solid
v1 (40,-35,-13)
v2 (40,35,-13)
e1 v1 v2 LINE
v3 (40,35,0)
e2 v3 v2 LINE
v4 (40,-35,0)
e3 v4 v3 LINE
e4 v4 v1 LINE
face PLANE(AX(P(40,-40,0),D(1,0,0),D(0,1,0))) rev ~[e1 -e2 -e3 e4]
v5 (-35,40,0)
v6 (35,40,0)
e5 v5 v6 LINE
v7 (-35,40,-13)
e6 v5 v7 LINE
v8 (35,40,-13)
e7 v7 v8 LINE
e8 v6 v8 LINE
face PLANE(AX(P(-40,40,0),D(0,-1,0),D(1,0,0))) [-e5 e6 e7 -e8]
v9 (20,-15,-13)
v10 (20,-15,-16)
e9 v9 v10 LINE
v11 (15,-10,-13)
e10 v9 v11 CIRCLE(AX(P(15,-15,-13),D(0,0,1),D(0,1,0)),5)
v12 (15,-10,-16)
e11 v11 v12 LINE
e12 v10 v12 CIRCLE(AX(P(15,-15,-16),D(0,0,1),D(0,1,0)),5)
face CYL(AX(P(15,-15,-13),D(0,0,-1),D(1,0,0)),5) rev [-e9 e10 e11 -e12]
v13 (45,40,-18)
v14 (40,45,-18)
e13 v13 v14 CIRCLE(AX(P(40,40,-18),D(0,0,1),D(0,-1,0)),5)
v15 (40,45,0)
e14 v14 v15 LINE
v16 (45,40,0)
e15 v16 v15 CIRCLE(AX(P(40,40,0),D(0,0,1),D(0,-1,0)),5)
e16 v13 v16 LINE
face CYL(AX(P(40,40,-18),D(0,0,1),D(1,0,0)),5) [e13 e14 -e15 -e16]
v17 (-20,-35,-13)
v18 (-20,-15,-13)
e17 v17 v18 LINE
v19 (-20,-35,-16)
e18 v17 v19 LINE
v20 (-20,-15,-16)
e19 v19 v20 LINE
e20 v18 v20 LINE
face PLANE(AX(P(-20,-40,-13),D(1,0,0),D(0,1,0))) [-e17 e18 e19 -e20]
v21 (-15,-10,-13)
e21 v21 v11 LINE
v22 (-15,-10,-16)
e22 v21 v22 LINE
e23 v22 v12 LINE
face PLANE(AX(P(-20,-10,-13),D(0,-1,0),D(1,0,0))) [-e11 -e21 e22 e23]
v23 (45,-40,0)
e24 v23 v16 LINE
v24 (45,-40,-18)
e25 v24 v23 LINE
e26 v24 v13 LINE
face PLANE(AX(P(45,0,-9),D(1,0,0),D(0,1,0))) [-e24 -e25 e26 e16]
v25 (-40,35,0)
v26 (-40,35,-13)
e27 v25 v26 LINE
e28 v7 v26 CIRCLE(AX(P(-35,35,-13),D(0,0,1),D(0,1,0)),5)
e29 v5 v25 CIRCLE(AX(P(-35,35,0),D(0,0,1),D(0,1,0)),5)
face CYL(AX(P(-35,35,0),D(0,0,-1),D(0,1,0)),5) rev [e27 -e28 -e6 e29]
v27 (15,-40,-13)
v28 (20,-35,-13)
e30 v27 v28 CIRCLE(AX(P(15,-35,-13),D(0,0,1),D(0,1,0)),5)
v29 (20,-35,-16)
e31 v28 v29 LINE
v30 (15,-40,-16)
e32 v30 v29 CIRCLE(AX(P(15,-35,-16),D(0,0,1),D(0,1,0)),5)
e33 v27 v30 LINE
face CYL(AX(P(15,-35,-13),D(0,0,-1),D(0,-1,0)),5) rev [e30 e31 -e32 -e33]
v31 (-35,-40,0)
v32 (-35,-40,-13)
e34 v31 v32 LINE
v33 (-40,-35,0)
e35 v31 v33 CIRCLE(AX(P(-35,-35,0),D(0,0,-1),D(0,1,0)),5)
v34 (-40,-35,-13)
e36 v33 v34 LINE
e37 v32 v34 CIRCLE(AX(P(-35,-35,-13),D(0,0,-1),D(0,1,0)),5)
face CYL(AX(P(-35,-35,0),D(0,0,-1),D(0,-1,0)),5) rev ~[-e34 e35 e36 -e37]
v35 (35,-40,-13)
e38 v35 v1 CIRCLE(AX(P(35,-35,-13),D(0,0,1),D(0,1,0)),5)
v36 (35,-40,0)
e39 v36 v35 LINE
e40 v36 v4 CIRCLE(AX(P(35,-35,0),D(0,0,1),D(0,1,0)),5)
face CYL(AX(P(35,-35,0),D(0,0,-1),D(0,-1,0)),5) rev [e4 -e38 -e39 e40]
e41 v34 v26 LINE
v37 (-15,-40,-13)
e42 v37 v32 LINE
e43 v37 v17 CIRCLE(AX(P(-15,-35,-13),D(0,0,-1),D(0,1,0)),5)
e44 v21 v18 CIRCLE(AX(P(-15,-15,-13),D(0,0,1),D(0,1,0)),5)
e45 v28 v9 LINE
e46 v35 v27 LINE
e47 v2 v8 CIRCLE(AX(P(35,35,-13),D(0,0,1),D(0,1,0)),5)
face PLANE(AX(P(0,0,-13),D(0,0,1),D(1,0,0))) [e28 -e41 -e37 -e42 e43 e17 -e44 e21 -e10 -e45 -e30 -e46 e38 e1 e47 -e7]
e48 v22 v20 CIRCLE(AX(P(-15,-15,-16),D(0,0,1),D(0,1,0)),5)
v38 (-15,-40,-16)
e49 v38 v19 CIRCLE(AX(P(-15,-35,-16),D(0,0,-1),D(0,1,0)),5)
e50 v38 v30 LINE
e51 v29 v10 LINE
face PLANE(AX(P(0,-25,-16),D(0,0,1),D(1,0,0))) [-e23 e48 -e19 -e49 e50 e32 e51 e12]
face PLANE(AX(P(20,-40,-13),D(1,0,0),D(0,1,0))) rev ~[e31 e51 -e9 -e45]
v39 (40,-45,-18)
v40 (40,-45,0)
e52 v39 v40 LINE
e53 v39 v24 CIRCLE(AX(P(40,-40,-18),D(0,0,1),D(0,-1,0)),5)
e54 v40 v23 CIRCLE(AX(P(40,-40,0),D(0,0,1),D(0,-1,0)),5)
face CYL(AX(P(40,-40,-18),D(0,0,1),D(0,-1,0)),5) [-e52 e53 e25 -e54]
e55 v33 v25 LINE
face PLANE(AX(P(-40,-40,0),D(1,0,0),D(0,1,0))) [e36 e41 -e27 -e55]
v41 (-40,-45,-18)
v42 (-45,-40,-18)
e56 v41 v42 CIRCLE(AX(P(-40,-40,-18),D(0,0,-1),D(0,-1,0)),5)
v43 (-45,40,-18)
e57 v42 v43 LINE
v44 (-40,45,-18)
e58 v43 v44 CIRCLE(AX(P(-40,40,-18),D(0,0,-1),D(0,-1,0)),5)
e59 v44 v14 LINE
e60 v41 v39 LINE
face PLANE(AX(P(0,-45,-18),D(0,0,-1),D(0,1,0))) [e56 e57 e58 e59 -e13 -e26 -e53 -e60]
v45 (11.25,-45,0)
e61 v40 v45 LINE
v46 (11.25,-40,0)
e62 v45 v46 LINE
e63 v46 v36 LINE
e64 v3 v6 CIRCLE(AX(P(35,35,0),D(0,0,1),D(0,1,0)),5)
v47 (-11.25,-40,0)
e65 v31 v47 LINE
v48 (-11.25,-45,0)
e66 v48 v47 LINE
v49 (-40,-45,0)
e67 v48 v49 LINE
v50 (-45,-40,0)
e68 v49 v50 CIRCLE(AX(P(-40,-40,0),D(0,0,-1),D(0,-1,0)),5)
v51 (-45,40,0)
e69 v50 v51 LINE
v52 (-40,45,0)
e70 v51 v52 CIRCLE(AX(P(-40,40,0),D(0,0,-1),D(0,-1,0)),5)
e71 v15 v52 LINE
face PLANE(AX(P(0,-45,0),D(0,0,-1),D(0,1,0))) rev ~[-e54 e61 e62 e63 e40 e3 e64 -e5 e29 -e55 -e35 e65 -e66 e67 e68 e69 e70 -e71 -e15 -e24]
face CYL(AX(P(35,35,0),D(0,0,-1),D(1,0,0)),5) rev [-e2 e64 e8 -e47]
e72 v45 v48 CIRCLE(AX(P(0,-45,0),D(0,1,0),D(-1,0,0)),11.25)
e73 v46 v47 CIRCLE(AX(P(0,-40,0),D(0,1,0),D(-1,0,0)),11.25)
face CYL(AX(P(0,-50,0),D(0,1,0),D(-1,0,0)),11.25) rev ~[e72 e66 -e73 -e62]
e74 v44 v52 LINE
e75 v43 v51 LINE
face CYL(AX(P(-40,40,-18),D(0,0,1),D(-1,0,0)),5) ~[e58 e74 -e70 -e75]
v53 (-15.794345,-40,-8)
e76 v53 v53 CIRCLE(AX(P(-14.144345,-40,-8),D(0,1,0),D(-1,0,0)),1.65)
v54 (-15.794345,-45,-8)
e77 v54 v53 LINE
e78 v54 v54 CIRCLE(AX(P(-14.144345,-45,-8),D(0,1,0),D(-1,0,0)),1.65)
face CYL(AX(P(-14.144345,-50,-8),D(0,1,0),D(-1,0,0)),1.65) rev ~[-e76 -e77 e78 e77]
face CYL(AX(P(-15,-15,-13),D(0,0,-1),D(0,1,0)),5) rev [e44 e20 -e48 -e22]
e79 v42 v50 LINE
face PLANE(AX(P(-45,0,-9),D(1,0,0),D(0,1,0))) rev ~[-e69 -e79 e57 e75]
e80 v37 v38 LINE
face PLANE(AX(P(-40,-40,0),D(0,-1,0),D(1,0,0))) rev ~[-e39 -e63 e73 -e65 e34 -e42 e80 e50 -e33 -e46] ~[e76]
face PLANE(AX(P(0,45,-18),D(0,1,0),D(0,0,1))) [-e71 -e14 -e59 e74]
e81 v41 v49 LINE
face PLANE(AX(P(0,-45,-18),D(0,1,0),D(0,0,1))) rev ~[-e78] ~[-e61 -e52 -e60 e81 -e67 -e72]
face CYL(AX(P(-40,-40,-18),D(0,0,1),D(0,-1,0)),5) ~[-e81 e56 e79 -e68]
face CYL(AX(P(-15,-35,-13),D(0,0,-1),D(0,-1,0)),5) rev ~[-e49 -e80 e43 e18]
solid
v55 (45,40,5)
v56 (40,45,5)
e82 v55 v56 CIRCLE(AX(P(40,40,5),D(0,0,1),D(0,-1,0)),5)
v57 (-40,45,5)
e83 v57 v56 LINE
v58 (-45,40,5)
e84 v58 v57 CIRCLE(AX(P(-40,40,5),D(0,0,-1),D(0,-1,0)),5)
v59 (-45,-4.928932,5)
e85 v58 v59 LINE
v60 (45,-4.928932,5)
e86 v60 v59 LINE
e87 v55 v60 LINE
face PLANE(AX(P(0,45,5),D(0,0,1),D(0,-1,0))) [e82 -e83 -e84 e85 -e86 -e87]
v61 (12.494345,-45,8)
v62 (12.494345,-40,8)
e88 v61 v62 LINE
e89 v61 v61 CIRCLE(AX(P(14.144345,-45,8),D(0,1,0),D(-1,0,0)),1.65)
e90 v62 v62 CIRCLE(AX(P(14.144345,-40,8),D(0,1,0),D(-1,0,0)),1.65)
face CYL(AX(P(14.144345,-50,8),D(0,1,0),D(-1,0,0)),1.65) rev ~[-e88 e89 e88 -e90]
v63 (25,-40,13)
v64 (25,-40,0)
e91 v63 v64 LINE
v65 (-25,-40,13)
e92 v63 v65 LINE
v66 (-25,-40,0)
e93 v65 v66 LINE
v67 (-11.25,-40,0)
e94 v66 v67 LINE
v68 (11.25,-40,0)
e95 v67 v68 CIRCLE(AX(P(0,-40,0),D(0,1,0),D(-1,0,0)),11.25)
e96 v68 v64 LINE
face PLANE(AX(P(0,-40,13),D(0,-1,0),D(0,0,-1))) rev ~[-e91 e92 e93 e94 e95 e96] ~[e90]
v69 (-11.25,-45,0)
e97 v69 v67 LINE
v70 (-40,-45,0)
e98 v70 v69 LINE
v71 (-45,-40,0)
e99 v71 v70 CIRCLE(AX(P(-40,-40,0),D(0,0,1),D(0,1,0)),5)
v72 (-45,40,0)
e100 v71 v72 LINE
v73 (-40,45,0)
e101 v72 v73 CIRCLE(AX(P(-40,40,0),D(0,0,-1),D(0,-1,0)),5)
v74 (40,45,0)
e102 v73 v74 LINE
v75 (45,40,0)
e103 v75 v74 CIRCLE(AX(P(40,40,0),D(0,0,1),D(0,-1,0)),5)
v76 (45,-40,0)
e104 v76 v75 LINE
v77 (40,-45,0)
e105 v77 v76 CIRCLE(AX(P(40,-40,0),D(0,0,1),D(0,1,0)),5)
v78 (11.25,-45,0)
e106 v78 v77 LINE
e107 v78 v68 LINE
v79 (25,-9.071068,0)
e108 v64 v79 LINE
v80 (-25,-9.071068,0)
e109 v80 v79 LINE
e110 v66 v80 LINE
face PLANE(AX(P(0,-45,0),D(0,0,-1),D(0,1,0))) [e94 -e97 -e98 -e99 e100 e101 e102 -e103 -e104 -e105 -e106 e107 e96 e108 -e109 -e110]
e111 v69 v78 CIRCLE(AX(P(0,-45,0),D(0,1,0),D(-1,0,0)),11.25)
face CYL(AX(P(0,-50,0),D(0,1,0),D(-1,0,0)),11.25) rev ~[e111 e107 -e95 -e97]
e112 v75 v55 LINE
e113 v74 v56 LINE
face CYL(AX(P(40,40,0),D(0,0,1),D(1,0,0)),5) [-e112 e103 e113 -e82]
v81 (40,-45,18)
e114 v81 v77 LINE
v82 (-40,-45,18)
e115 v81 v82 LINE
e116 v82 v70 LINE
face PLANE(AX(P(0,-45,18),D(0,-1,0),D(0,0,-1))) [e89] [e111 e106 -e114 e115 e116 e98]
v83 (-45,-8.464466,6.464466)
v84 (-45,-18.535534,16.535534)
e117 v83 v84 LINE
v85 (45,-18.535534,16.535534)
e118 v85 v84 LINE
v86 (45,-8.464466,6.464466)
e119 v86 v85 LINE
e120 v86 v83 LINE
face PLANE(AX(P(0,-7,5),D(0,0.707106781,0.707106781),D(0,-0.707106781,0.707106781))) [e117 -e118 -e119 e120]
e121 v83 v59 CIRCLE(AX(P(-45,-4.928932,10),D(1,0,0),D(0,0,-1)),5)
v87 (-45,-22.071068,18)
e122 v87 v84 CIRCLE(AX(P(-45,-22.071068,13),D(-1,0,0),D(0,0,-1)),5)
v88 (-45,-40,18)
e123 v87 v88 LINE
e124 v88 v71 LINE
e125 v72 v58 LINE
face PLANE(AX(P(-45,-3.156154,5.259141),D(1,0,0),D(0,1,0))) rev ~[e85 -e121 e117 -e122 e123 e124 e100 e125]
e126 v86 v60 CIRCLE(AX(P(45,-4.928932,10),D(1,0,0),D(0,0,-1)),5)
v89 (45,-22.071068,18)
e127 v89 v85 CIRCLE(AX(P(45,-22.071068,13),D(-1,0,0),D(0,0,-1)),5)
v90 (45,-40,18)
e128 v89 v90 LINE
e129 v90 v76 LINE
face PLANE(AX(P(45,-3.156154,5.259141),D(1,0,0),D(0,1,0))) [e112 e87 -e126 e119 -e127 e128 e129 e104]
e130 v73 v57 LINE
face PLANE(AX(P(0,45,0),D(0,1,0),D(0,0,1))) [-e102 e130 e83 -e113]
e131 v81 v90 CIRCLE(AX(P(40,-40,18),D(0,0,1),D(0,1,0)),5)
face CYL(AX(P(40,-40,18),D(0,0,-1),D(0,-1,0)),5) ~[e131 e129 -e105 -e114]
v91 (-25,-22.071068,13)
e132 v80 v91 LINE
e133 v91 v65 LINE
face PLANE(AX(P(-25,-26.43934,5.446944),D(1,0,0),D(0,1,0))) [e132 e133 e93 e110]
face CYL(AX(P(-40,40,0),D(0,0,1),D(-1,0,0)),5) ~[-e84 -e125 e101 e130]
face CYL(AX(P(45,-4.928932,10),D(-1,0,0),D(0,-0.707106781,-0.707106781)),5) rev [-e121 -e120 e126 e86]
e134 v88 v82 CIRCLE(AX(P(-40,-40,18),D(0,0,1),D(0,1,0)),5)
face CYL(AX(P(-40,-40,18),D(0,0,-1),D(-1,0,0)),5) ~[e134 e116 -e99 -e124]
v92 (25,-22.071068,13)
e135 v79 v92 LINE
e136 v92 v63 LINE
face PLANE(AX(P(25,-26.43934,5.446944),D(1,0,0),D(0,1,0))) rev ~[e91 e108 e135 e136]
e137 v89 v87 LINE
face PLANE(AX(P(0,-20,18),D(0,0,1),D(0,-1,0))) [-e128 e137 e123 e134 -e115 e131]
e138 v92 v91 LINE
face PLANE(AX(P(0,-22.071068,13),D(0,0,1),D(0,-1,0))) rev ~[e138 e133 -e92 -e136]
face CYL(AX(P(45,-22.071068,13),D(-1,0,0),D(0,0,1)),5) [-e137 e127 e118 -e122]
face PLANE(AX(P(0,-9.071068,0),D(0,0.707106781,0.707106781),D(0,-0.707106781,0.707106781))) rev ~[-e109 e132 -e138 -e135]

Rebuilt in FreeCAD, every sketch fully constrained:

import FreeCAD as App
import Part
import Sketcher

V = App.Vector
Q = App.Units.Quantity


def edges_at(feature, points):
    """Names of the edges that pass closest to the given points."""
    edges = feature.Shape.Edges
    near = lambda p: min(range(len(edges)), key=lambda i: edges[i].distToShape(Part.Vertex(*p))[0])
    return sorted({f"Edge{near(p) + 1}" for p in points})

doc = App.newDocument("Part")
body = doc.addObject("PartDesign::Body", "Body")

# Sketch on YZ plane
sketch1 = body.newObject("Sketcher::SketchObject", "Sketch")
sketch1.AttachmentSupport = (doc.getObject("YZ_Plane"), [""])
sketch1.MapMode = "FlatFace"
sketch1.addGeometry([
    Part.LineSegment(V(-45, 0, 0), V(-45, -18, 0)),
    Part.LineSegment(V(-45, -18, 0), V(45, -18, 0)),
    Part.LineSegment(V(45, -18, 0), V(45, 0, 0)),
    Part.LineSegment(V(45, 0, 0), V(-45, 0, 0)),
], False)
sketch1.addConstraint([
    Sketcher.Constraint("Coincident", 0, 2, 1, 1),
    Sketcher.Constraint("Coincident", 1, 2, 2, 1),
    Sketcher.Constraint("Coincident", 2, 2, 3, 1),
    Sketcher.Constraint("Coincident", 3, 2, 0, 1),
    Sketcher.Constraint("Vertical", 0),
    Sketcher.Constraint("Horizontal", 1),
    Sketcher.Constraint("Vertical", 2),
    Sketcher.Constraint("Horizontal", 3),
    Sketcher.Constraint("Symmetric", 2, 2, 3, 2, -1, 1),
    Sketcher.Constraint("DistanceX", 1, 1, 1, 2, 90.0),
    Sketcher.Constraint("DistanceY", 0, 2, 0, 1, 18.0),
])
pad1 = body.newObject("PartDesign::Pad", "Pad")
pad1.Profile = sketch1
pad1.Length = 90
pad1.Midplane = True

# Sketch on XY plane
sketch2 = body.newObject("Sketcher::SketchObject", "Sketch001")
sketch2.AttachmentSupport = (doc.getObject("XY_Plane"), [""])
sketch2.MapMode = "FlatFace"
sketch2.addGeometry([
    Part.LineSegment(V(-40, 40, 0), V(-40, -40, 0)),
    Part.LineSegment(V(-40, -40, 0), V(40, -40, 0)),
    Part.LineSegment(V(40, -40, 0), V(40, 40, 0)),
    Part.LineSegment(V(40, 40, 0), V(-40, 40, 0)),
], False)
sketch2.addConstraint([
    Sketcher.Constraint("Coincident", 0, 2, 1, 1),
    Sketcher.Constraint("Coincident", 1, 2, 2, 1),
    Sketcher.Constraint("Coincident", 2, 2, 3, 1),
    Sketcher.Constraint("Coincident", 3, 2, 0, 1),
    Sketcher.Constraint("Vertical", 0),
    Sketcher.Constraint("Horizontal", 1),
    Sketcher.Constraint("Vertical", 2),
    Sketcher.Constraint("Horizontal", 3),
    Sketcher.Constraint("Symmetric", 0, 2, 2, 2, -1, 1),
    Sketcher.Constraint("Equal", 3, 0),
    Sketcher.Constraint("DistanceX", 1, 1, 1, 2, 80.0),
])
pocket1 = body.newObject("PartDesign::Pocket", "Pocket")
pocket1.Profile = sketch2
pocket1.Length = 13

# Sketch on XY plane
sketch3 = body.newObject("Sketcher::SketchObject", "Sketch002")
sketch3.AttachmentSupport = (doc.getObject("XY_Plane"), [""])
sketch3.MapMode = "FlatFace"
sketch3.AttachmentOffset = App.Placement(V(0, 0, -13), App.Rotation())
sketch3.addGeometry([
    Part.LineSegment(V(-20, -10, 0), V(-20, -40, 0)),
    Part.LineSegment(V(-20, -40, 0), V(20, -40, 0)),
    Part.LineSegment(V(20, -40, 0), V(20, -10, 0)),
    Part.LineSegment(V(20, -10, 0), V(-20, -10, 0)),
], False)
sketch3.addConstraint([
    Sketcher.Constraint("Coincident", 0, 2, 1, 1),
    Sketcher.Constraint("Coincident", 1, 2, 2, 1),
    Sketcher.Constraint("Coincident", 2, 2, 3, 1),
    Sketcher.Constraint("Coincident", 3, 2, 0, 1),
    Sketcher.Constraint("Vertical", 0),
    Sketcher.Constraint("Horizontal", 1),
    Sketcher.Constraint("Vertical", 2),
    Sketcher.Constraint("Horizontal", 3),
    Sketcher.Constraint("DistanceX", 1, 1, 1, 2, 40.0),
    Sketcher.Constraint("DistanceY", 0, 2, 0, 1, 30.0),
    Sketcher.Constraint("DistanceX", 0, 2, -1, 1, 20.0),
    Sketcher.Constraint("DistanceY", 0, 2, -1, 1, 40.0),
])
pocket2 = body.newObject("PartDesign::Pocket", "Pocket001")
pocket2.Profile = sketch3
pocket2.Length = 3

# Sketch on XZ plane
sketch4 = body.newObject("Sketcher::SketchObject", "Sketch003")
sketch4.AttachmentSupport = (doc.getObject("XZ_Plane"), [""])
sketch4.MapMode = "FlatFace"
sketch4.AttachmentOffset = App.Placement(V(0, 0, 45), App.Rotation())
sketch4.addGeometry(Part.Circle(V(0, 0, 0), V(0, 0, 1), 11.25), False)
sketch4.addConstraint([
    Sketcher.Constraint("Coincident", 0, 3, -1, 1),
    Sketcher.Constraint("Diameter", 0, 22.5),
])
doc.recompute()
hole = body.newObject("PartDesign::Hole", "Hole")
hole.Profile = sketch4
hole.ThreadType = "None"
hole.Diameter = 22.5
hole.DepthType = "Dimension"
hole.Depth = 5
hole.DrillPoint = "Angled"
hole.DrillPointAngle = 118
doc.recompute()

fillet = body.newObject("PartDesign::Fillet", "Fillet")
fillet.Base = (hole, edges_at(hole, [
    (45, -45, -9),
    (45, 45, -9),
    (-45, 45, -9),
    (-45, -45, -9),
]))
fillet.Radius = 5

# Sketch on XZ plane
sketch5 = body.newObject("Sketcher::SketchObject", "Sketch004")
sketch5.AttachmentSupport = (doc.getObject("XZ_Plane"), [""])
sketch5.MapMode = "FlatFace"
sketch5.AttachmentOffset = App.Placement(V(0, 0, 45), App.Rotation())
sketch5.addGeometry([
    Part.Circle(V(-14.144345, -8, 0), V(0, 0, 1), 1.65),
    Part.Circle(V(14.144345, 8, 0), V(0, 0, 1), 1.65),
], False)
sketch5.addConstraint([
    Sketcher.Constraint("Equal", 0, 1),
    Sketcher.Constraint("Symmetric", 0, 3, 1, 3, -1, 1),
    Sketcher.Constraint("Diameter", 0, 3.3),
    Sketcher.Constraint("DistanceY", 0, 3, -1, 1, 8.0),
    Sketcher.Constraint("DistanceX", 0, 3, 1, 3, 28.28869),
])
doc.recompute()
hole2 = body.newObject("PartDesign::Hole", "Hole001")
hole2.Profile = sketch5
hole2.ThreadType = "None"
hole2.Diameter = 3.3
hole2.DepthType = "Dimension"
hole2.Depth = 5
hole2.DrillPoint = "Angled"
hole2.DrillPointAngle = 118
doc.recompute()

fillet2 = body.newObject("PartDesign::Fillet", "Fillet001")
fillet2.Base = (hole2, edges_at(hole2, [
    (-40, 40, -6.5),
    (40, 40, -6.5),
    (-40, -40, -6.5),
    (40, -40, -6.5),
    (-20, -10, -14.5),
    (20, -10, -14.5),
    (20, -40, -14.5),
    (-20, -40, -14.5),
]))
fillet2.Radius = 5
body2 = doc.addObject("PartDesign::Body", "Body001")

# Sketch on YZ plane
sketch6 = body2.newObject("Sketcher::SketchObject", "Sketch005")
sketch6.AttachmentSupport = (doc.getObject("YZ_Plane001"), [""])
sketch6.MapMode = "FlatFace"
sketch6.addGeometry([
    Part.LineSegment(V(-45, 18, 0), V(-45, 0, 0)),  # 0
    Part.LineSegment(V(-45, 0, 0), V(45, 0, 0)),  # 1
    Part.LineSegment(V(45, 0, 0), V(45, 5, 0)),  # 2
    Part.LineSegment(V(45, 5, 0), V(-7, 5, 0)),  # 3
    Part.LineSegment(V(-7, 5, 0), V(-20, 18, 0)),  # 4
    Part.LineSegment(V(-20, 18, 0), V(-45, 18, 0)),  # 5
], False)
sketch6.addConstraint([
    Sketcher.Constraint("Coincident", 0, 2, 1, 1),
    Sketcher.Constraint("Coincident", 1, 2, 2, 1),
    Sketcher.Constraint("Coincident", 2, 2, 3, 1),
    Sketcher.Constraint("Coincident", 3, 2, 4, 1),
    Sketcher.Constraint("Coincident", 4, 2, 5, 1),
    Sketcher.Constraint("Coincident", 5, 2, 0, 1),
    Sketcher.Constraint("Vertical", 0),
    Sketcher.Constraint("Horizontal", 1),
    Sketcher.Constraint("Vertical", 2),
    Sketcher.Constraint("Horizontal", 3),
    Sketcher.Constraint("Horizontal", 5),
    Sketcher.Constraint("Symmetric", 0, 2, 1, 2, -1, 1),
    Sketcher.Constraint("DistanceX", 1, 1, 1, 2, 90.0),
    Sketcher.Constraint("DistanceX", 3, 2, 3, 1, 52.0),
    Sketcher.Constraint("DistanceX", 5, 2, 5, 1, 25.0),
    Sketcher.Constraint("DistanceY", 0, 2, 0, 1, 18.0),
    Sketcher.Constraint("DistanceY", 2, 1, 2, 2, 5.0),
])
pad2 = body2.newObject("PartDesign::Pad", "Pad001")
pad2.Profile = sketch6
pad2.Length = 90
pad2.Midplane = True

# Sketch on XZ plane
sketch7 = body2.newObject("Sketcher::SketchObject", "Sketch006")
sketch7.AttachmentSupport = (doc.getObject("XZ_Plane001"), [""])
sketch7.MapMode = "FlatFace"
sketch7.AttachmentOffset = App.Placement(V(0, 0, 45), App.Rotation())
sketch7.addGeometry(Part.Circle(V(0, 0, 0), V(0, 0, 1), 11.25), False)
sketch7.addConstraint([
    Sketcher.Constraint("Coincident", 0, 3, -1, 1),
    Sketcher.Constraint("Diameter", 0, 22.5),
])
doc.recompute()
hole3 = body2.newObject("PartDesign::Hole", "Hole002")
hole3.Profile = sketch7
hole3.ThreadType = "None"
hole3.Diameter = 22.5
hole3.DepthType = "Dimension"
hole3.Depth = 5
hole3.DrillPoint = "Angled"
hole3.DrillPointAngle = 118

# Sketch on YZ plane
sketch8 = body2.newObject("Sketcher::SketchObject", "Sketch007")
sketch8.AttachmentSupport = (doc.getObject("YZ_Plane001"), [""])
sketch8.MapMode = "FlatFace"
sketch8.addGeometry([
    Part.LineSegment(V(-40, 13, 0), V(-40, 0, 0)),
    Part.LineSegment(V(-40, 0, 0), V(-9.071068, 0, 0)),
    Part.LineSegment(V(-9.071068, 0, 0), V(-22.071068, 13, 0)),
    Part.LineSegment(V(-22.071068, 13, 0), V(-40, 13, 0)),
], False)
sketch8.addConstraint([
    Sketcher.Constraint("Coincident", 0, 2, 1, 1),
    Sketcher.Constraint("Coincident", 1, 2, 2, 1),
    Sketcher.Constraint("Coincident", 2, 2, 3, 1),
    Sketcher.Constraint("Coincident", 3, 2, 0, 1),
    Sketcher.Constraint("Vertical", 0),
    Sketcher.Constraint("Horizontal", 1),
    Sketcher.Constraint("Horizontal", 3),
    Sketcher.Constraint("PointOnObject", 0, 2, -1),
    Sketcher.Constraint("DistanceY", 0, 2, 0, 1, 13.0),
    Sketcher.Constraint("Angle", 2, Q("135 deg")),
    Sketcher.Constraint("DistanceX", 0, 2, -1, 1, 40.0),
    Sketcher.Constraint("DistanceX", 1, 1, 1, 2, 30.928932),
])
pocket3 = body2.newObject("PartDesign::Pocket", "Pocket002")
pocket3.Profile = sketch8
pocket3.Length = 50
pocket3.Midplane = True
doc.recompute()

fillet3 = body2.newObject("PartDesign::Fillet", "Fillet002")
fillet3.Base = (pocket3, edges_at(pocket3, [(0, -20, 18), (0, -7, 5)]))
fillet3.Radius = 5
doc.recompute()

fillet4 = body2.newObject("PartDesign::Fillet", "Fillet003")
fillet4.Base = (fillet3, edges_at(fillet3, [
    (45, -45, 9),
    (45, 45, 2.5),
    (-45, 45, 2.5),
    (-45, -45, 9),
]))
fillet4.Radius = 5

# Sketch on XZ plane
sketch9 = body2.newObject("Sketcher::SketchObject", "Sketch008")
sketch9.AttachmentSupport = (doc.getObject("XZ_Plane001"), [""])
sketch9.MapMode = "FlatFace"
sketch9.AttachmentOffset = App.Placement(V(0, 0, 45), App.Rotation())
sketch9.addGeometry([
    Part.Circle(V(-14.144345, -8, 0), V(0, 0, 1), 1.65),
    Part.Circle(V(14.144345, 8, 0), V(0, 0, 1), 1.65),
], False)
sketch9.addConstraint([
    Sketcher.Constraint("Equal", 0, 1),
    Sketcher.Constraint("Symmetric", 0, 3, 1, 3, -1, 1),
    Sketcher.Constraint("Diameter", 0, 3.3),
    Sketcher.Constraint("DistanceY", 0, 3, -1, 1, 8.0),
    Sketcher.Constraint("DistanceX", 0, 3, 1, 3, 28.28869),
])
doc.recompute()
hole4 = body2.newObject("PartDesign::Hole", "Hole003")
hole4.Profile = sketch9
hole4.ThreadType = "None"
hole4.Diameter = 3.3
hole4.DepthType = "Dimension"
hole4.Depth = 5
hole4.DrillPoint = "Angled"
hole4.DrillPointAngle = 118

doc.recompute()
